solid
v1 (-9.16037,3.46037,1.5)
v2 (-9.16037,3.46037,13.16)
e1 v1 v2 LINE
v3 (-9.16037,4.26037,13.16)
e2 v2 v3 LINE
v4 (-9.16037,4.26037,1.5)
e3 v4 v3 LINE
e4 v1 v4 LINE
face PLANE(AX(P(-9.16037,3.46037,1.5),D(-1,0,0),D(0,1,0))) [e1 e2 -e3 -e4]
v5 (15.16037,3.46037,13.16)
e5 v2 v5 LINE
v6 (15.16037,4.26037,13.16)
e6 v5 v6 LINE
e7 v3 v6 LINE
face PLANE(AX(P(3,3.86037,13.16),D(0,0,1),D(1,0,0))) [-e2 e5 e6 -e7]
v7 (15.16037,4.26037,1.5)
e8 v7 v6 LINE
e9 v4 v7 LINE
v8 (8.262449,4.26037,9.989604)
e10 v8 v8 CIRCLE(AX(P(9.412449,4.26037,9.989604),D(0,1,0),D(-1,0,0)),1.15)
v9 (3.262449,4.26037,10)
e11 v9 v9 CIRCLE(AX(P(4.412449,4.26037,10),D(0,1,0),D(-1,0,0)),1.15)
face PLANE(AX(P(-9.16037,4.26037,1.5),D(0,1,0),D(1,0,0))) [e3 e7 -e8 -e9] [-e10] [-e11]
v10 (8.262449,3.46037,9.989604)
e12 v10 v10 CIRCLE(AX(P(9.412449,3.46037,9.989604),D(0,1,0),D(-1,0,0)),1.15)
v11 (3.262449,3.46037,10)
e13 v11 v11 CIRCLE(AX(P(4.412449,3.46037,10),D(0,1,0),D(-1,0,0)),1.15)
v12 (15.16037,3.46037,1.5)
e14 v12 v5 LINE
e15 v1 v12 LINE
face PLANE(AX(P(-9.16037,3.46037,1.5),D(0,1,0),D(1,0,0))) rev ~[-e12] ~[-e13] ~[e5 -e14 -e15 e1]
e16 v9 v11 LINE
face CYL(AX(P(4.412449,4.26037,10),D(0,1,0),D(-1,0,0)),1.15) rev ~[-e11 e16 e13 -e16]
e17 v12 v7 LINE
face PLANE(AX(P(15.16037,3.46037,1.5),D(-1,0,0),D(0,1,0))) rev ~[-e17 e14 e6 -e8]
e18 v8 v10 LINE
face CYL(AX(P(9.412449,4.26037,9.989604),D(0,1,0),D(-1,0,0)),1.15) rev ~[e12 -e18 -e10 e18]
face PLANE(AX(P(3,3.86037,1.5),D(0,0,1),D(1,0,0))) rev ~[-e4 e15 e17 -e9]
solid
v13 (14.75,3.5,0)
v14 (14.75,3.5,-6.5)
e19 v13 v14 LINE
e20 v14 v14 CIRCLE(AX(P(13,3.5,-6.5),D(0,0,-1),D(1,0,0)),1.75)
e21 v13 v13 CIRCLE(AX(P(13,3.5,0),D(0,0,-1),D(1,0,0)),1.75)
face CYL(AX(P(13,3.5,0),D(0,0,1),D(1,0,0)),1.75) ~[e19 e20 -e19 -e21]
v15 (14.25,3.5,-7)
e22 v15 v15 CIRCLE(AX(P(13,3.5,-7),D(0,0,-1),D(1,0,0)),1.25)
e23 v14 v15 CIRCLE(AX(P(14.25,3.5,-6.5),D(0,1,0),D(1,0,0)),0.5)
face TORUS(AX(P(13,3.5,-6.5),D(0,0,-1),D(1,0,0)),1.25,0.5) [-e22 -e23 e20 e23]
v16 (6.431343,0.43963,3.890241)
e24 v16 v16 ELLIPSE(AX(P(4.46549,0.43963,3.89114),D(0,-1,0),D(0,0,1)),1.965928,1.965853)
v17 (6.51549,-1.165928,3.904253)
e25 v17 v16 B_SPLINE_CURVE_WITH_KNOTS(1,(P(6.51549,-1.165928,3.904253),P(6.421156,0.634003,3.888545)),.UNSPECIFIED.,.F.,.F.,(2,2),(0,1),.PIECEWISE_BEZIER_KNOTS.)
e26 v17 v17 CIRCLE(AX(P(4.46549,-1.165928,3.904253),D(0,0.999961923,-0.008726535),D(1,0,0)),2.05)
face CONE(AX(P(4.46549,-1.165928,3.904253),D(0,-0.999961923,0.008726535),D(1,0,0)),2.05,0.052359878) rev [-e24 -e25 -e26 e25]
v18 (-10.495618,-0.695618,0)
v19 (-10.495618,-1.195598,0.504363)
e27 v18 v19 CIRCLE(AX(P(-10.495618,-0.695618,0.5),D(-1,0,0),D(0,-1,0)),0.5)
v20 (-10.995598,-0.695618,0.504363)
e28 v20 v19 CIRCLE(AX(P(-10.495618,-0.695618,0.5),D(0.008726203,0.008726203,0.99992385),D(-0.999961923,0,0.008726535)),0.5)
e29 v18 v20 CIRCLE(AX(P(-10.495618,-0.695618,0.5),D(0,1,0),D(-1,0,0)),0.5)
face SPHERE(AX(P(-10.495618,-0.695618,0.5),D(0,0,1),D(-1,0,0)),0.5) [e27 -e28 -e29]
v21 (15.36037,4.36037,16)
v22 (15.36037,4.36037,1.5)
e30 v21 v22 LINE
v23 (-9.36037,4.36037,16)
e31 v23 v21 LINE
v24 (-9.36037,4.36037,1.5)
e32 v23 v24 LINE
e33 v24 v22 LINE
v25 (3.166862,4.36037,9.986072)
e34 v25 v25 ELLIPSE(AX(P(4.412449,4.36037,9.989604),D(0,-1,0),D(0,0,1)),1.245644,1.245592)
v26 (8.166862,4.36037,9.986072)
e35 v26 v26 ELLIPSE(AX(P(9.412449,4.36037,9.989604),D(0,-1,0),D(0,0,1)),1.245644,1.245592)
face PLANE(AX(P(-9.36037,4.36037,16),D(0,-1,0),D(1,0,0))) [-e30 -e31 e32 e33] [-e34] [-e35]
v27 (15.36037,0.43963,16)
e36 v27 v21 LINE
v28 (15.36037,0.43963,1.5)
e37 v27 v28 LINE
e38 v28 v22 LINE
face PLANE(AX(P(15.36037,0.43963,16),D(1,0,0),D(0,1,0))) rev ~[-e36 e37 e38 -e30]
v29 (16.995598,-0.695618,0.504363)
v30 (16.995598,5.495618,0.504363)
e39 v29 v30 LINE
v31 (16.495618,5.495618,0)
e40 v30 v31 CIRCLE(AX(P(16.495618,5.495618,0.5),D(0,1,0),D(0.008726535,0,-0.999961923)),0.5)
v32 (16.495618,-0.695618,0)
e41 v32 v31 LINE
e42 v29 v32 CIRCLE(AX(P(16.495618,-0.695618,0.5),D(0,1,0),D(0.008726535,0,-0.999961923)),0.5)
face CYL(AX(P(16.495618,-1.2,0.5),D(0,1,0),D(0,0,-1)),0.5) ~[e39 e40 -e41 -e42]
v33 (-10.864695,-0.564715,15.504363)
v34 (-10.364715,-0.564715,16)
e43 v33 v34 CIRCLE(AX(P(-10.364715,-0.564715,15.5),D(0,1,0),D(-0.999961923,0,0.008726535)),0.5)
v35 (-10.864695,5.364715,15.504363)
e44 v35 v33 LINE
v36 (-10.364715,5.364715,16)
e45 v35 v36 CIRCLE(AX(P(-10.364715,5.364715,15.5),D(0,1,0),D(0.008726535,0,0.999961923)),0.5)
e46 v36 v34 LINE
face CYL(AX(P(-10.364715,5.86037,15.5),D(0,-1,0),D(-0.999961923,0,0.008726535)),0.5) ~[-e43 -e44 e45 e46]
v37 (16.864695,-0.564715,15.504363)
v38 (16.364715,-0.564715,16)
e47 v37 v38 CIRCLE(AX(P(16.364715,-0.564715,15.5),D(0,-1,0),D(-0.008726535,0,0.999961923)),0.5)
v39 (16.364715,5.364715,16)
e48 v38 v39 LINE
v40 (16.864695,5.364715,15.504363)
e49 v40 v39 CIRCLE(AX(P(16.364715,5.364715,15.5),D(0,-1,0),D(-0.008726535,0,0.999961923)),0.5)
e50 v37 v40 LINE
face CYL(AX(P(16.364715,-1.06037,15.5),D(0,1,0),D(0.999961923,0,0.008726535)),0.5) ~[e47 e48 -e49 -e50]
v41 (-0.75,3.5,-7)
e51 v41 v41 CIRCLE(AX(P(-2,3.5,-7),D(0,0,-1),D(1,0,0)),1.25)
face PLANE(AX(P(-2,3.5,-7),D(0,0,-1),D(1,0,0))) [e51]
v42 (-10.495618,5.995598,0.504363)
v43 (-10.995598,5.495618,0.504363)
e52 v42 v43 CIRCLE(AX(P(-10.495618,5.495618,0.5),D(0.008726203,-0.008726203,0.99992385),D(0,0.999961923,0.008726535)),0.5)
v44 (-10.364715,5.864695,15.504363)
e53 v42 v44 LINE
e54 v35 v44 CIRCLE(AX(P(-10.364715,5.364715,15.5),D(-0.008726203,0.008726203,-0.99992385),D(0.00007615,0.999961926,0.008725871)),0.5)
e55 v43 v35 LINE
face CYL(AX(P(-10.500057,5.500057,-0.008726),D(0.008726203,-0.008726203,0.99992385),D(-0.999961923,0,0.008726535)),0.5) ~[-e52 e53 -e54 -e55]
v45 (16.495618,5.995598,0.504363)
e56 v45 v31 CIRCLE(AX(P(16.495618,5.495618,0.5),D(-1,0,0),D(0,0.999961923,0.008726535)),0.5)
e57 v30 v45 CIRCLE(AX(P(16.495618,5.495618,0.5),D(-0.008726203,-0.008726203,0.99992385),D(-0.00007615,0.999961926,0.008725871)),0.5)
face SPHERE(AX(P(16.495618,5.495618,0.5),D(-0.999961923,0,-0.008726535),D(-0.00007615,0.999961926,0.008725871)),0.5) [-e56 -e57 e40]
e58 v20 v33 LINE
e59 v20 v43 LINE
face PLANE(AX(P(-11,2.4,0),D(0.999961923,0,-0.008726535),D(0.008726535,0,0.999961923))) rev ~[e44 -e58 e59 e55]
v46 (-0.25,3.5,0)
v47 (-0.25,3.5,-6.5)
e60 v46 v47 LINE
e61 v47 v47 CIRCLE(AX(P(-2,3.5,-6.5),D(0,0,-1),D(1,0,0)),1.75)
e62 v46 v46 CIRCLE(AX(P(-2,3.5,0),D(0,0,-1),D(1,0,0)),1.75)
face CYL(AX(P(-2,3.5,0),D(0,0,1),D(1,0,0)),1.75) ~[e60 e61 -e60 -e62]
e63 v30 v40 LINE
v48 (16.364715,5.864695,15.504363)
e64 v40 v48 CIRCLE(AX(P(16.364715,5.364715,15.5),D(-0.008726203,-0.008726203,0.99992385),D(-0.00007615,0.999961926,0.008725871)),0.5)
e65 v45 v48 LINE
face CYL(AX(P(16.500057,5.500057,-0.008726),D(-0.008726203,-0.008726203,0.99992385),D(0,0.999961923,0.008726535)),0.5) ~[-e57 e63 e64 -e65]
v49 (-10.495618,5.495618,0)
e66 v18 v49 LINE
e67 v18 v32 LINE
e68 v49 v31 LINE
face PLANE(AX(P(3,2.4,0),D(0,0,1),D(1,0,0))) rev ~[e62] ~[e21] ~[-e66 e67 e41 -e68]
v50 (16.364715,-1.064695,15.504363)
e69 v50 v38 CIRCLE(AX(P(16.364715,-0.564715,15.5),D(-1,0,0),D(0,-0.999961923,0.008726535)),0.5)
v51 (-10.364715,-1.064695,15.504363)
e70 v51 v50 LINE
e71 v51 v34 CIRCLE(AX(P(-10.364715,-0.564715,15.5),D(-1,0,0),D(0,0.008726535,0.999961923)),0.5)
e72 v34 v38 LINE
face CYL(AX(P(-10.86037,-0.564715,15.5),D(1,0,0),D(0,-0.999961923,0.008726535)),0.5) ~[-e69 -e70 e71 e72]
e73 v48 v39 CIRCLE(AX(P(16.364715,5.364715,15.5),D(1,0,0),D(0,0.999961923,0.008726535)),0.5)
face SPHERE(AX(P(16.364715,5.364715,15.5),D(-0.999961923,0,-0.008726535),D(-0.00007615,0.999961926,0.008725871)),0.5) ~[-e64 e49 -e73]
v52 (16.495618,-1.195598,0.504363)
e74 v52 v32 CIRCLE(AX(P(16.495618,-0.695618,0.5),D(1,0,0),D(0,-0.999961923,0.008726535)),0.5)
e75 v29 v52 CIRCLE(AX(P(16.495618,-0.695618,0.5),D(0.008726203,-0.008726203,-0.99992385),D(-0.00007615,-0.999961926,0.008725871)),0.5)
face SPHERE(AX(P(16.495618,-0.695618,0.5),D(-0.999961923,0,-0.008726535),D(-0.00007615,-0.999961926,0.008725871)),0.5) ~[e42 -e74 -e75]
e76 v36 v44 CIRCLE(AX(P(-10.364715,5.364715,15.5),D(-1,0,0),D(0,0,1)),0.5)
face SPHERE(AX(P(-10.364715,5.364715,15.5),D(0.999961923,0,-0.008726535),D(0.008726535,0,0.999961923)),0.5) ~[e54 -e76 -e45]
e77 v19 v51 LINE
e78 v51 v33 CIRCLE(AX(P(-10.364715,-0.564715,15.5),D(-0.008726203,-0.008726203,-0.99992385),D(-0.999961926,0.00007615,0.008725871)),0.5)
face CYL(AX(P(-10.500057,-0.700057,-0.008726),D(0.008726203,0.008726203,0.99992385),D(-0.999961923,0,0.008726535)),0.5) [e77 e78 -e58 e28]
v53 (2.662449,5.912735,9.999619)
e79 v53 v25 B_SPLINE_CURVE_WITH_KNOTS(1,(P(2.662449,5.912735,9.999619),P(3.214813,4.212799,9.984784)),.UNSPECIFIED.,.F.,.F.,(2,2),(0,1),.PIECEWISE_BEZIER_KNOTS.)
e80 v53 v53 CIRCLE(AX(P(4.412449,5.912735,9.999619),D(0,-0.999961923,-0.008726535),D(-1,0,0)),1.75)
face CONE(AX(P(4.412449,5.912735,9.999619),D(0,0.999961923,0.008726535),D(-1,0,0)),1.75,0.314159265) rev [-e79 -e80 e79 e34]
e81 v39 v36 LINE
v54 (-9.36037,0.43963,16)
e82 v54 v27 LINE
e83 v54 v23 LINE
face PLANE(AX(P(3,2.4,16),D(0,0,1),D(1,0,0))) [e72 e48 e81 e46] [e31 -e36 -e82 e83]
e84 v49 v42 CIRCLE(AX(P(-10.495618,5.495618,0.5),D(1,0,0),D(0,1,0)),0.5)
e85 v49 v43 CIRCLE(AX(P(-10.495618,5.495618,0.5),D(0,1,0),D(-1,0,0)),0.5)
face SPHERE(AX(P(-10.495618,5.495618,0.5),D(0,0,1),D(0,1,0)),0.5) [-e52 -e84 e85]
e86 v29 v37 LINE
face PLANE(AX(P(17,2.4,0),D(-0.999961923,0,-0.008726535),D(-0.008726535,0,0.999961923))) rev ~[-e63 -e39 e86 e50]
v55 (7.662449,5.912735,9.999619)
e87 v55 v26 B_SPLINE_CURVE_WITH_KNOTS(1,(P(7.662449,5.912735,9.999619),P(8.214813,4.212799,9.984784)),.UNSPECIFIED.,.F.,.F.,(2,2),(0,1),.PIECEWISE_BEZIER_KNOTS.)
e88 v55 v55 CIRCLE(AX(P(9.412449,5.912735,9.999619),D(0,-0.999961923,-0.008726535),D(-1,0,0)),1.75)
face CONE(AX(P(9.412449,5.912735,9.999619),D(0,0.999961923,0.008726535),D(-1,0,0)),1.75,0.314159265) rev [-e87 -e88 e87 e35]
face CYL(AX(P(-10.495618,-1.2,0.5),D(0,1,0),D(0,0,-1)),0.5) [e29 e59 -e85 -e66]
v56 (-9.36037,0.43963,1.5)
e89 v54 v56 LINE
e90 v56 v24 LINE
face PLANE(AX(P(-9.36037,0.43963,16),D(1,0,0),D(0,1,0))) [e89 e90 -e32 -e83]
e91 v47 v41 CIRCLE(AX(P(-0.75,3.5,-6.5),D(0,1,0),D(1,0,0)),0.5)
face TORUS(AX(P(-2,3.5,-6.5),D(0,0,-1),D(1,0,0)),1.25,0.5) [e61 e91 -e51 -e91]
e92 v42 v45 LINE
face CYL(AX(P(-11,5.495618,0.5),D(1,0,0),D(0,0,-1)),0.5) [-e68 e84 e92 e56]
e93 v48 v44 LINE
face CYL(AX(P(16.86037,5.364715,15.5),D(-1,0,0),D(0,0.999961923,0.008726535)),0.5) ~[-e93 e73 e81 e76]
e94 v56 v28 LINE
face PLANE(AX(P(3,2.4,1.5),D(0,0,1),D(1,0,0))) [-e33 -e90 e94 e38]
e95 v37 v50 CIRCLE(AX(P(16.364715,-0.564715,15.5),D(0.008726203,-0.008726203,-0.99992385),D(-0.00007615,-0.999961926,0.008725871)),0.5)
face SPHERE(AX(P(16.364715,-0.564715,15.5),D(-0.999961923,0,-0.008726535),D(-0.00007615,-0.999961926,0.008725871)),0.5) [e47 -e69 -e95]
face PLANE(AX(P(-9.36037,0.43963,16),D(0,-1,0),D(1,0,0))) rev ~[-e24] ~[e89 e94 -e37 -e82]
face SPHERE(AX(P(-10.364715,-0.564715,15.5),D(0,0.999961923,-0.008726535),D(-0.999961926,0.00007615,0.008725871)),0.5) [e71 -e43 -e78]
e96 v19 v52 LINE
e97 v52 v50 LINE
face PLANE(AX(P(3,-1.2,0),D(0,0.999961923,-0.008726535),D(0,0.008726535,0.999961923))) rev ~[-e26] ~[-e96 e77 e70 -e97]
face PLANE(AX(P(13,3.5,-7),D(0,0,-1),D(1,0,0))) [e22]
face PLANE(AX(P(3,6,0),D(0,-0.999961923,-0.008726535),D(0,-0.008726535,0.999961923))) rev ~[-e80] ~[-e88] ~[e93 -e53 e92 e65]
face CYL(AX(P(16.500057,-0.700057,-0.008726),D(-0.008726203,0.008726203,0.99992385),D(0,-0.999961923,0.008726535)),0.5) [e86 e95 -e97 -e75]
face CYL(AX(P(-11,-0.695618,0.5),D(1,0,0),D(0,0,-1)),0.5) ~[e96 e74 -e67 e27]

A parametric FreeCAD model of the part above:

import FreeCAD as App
import Part
import Sketcher
Q = App.Units.Quantity


def edges_at(feature, points):
    """Names of the edges that pass closest to the given points."""
    edges = feature.Shape.Edges
    near = lambda p: min(range(len(edges)), key=lambda i: edges[i].distToShape(Part.Vertex(*p))[0])
    return sorted({f"Edge{near(p) + 1}" for p in points})

doc = App.newDocument("Part")
body = doc.addObject("PartDesign::Body", "Body")

# Sketch on XY plane
sketch1 = body.newObject("Sketcher::SketchObject", "Sketch")
sketch1.AttachmentSupport = (doc.getObject("XY_Plane"), [""])
sketch1.MapMode = "FlatFace"
sketch1.addGeometry(Part.LineSegment(App.Vector(-11, 6, 0), App.Vector(-11, -1.2, 0)), False)
sketch1.addGeometry(Part.LineSegment(App.Vector(-11, -1.2, 0), App.Vector(17, -1.2, 0)), False)
sketch1.addGeometry(Part.LineSegment(App.Vector(17, -1.2, 0), App.Vector(17, 6, 0)), False)
sketch1.addGeometry(Part.LineSegment(App.Vector(17, 6, 0), App.Vector(-11, 6, 0)), False)
sketch1.addConstraint(Sketcher.Constraint("Coincident", 0, 2, 1, 1))
sketch1.addConstraint(Sketcher.Constraint("Coincident", 1, 2, 2, 1))
sketch1.addConstraint(Sketcher.Constraint("Coincident", 2, 2, 3, 1))
sketch1.addConstraint(Sketcher.Constraint("Coincident", 3, 2, 0, 1))
sketch1.addConstraint(Sketcher.Constraint("Vertical", 0))
sketch1.addConstraint(Sketcher.Constraint("Horizontal", 1))
sketch1.addConstraint(Sketcher.Constraint("Vertical", 2))
sketch1.addConstraint(Sketcher.Constraint("Horizontal", 3))
sketch1.addConstraint(Sketcher.Constraint("DistanceX", 1, 1, 1, 2, Q("28 mm")))
sketch1.addConstraint(Sketcher.Constraint("DistanceY", 0, 2, 0, 1, Q("7.2 mm")))
sketch1.addConstraint(Sketcher.Constraint("DistanceX", 0, 2, -1, 1, Q("11 mm")))
sketch1.addConstraint(Sketcher.Constraint("DistanceY", -1, 1, 2, 2, Q("6 mm")))
pad1 = body.newObject("PartDesign::Pad", "Pad")
pad1.Profile = sketch1
pad1.Length = 16
pad1.TaperAngle = -0.5

# Sketch on XY plane
sketch2 = body.newObject("Sketcher::SketchObject", "Sketch001")
sketch2.AttachmentSupport = (doc.getObject("XY_Plane"), [""])
sketch2.MapMode = "FlatFace"
sketch2.addGeometry(Part.Circle(App.Vector(13, 3.5, 0), App.Vector(0, 0, 1), 1.75), False)
sketch2.addGeometry(Part.Circle(App.Vector(-2, 3.5, 0), App.Vector(0, 0, 1), 1.75), False)
sketch2.addConstraint(Sketcher.Constraint("Equal", 0, 1))
sketch2.addConstraint(Sketcher.Constraint("Horizontal", 0, 3, 1, 3))
sketch2.addConstraint(Sketcher.Constraint("Diameter", 0, Q("3.5 mm")))
sketch2.addConstraint(Sketcher.Constraint("DistanceX", -1, 1, 0, 3, Q("13 mm")))
sketch2.addConstraint(Sketcher.Constraint("DistanceX", 1, 3, -1, 1, Q("2 mm")))
sketch2.addConstraint(Sketcher.Constraint("DistanceY", -1, 1, 0, 3, Q("3.5 mm")))
pad2 = body.newObject("PartDesign::Pad", "Pad001")
pad2.Profile = sketch2
pad2.Length = 7
pad2.Reversed = True

# Sketch on an angled plane
sketch3 = body.newObject("Sketcher::SketchObject", "Sketch002")
sketch3.Placement = App.Placement(App.Vector(0, 5.999543, 0.052357), App.Rotation(App.Vector(-1, 0, 0), App.Vector(0, -0.008726535, 0.999961923), App.Vector(0, 0.999961923, 0.008726535), "ZXY"))
sketch3.addGeometry(Part.Circle(App.Vector(-6.726412, 22.881377, 0), App.Vector(0, 0, 1), 1.75), False)
sketch3.addConstraint(Sketcher.Constraint("Diameter", 0, Q("3.5 mm")))
sketch3.addConstraint(Sketcher.Constraint("DistanceX", 0, 3, -1, 1, Q("6.726412 mm")))
sketch3.addConstraint(Sketcher.Constraint("DistanceY", -1, 1, 0, 3, Q("22.881377 mm")))
pocket1 = body.newObject("PartDesign::Pocket", "Pocket")
pocket1.Profile = sketch3
pocket1.Length = 1.6
pocket1.TaperAngle = -18

# Sketch on an angled plane
sketch4 = body.newObject("Sketcher::SketchObject", "Sketch003")
sketch4.Placement = App.Placement(App.Vector(0, 5.999543, 0.052357), App.Rotation(App.Vector(-1, 0, 0), App.Vector(0, -0.008726535, 0.999961923), App.Vector(0, 0.999961923, 0.008726535), "ZXY"))
sketch4.addGeometry(Part.Circle(App.Vector(-9.412449, 9.947641, 0), App.Vector(0, 0, 1), 1.75), False)
sketch4.addGeometry(Part.Circle(App.Vector(-4.412449, 9.947641, 0), App.Vector(0, 0, 1), 1.75), False)
sketch4.addConstraint(Sketcher.Constraint("Equal", 0, 1))
sketch4.addConstraint(Sketcher.Constraint("Horizontal", 0, 3, 1, 3))
sketch4.addConstraint(Sketcher.Constraint("Diameter", 0, Q("3.5 mm")))
sketch4.addConstraint(Sketcher.Constraint("DistanceX", 0, 3, 1, 3, Q("5 mm")))
sketch4.addConstraint(Sketcher.Constraint("DistanceX", 0, 3, -1, 1, Q("9.412449 mm")))
sketch4.addConstraint(Sketcher.Constraint("DistanceY", -1, 1, 0, 3, Q("9.947641 mm")))
pocket2 = body.newObject("PartDesign::Pocket", "Pocket001")
pocket2.Profile = sketch4
pocket2.Length = 1.7
pocket2.TaperAngle = -18

# Sketch on XY plane
sketch5 = body.newObject("Sketcher::SketchObject", "Sketch004")
sketch5.AttachmentSupport = (doc.getObject("XY_Plane"), [""])
sketch5.MapMode = "FlatFace"
sketch5.AttachmentOffset = App.Placement(App.Vector(0, 0, 16), App.Rotation())
sketch5.addGeometry(Part.LineSegment(App.Vector(-9.36037, 4.36037, 0), App.Vector(-9.36037, 0.43963, 0)), False)
sketch5.addGeometry(Part.LineSegment(App.Vector(-9.36037, 0.43963, 0), App.Vector(15.36037, 0.43963, 0)), False)
sketch5.addGeometry(Part.LineSegment(App.Vector(15.36037, 0.43963, 0), App.Vector(15.36037, 4.36037, 0)), False)
sketch5.addGeometry(Part.LineSegment(App.Vector(15.36037, 4.36037, 0), App.Vector(-9.36037, 4.36037, 0)), False)
sketch5.addConstraint(Sketcher.Constraint("Coincident", 0, 2, 1, 1))
sketch5.addConstraint(Sketcher.Constraint("Coincident", 1, 2, 2, 1))
sketch5.addConstraint(Sketcher.Constraint("Coincident", 2, 2, 3, 1))
sketch5.addConstraint(Sketcher.Constraint("Coincident", 3, 2, 0, 1))
sketch5.addConstraint(Sketcher.Constraint("Vertical", 0))
sketch5.addConstraint(Sketcher.Constraint("Horizontal", 1))
sketch5.addConstraint(Sketcher.Constraint("Vertical", 2))
sketch5.addConstraint(Sketcher.Constraint("Horizontal", 3))
sketch5.addConstraint(Sketcher.Constraint("DistanceX", 1, 1, 1, 2, Q("24.72074 mm")))
sketch5.addConstraint(Sketcher.Constraint("DistanceY", 0, 2, 0, 1, Q("3.92074 mm")))
sketch5.addConstraint(Sketcher.Constraint("DistanceX", 0, 2, -1, 1, Q("9.36037 mm")))
sketch5.addConstraint(Sketcher.Constraint("DistanceY", -1, 1, 0, 2, Q("0.43963 mm")))
pocket3 = body.newObject("PartDesign::Pocket", "Pocket002")
pocket3.Profile = sketch5
pocket3.Length = 14.5
doc.recompute()

fillet = body.newObject("PartDesign::Fillet", "Fillet")
fillet.Base = (pocket3, edges_at(pocket3, [
    (3, 5.86, 16),
    (-10.86, 2.4, 16),
    (-10.93, 5.93, 8),
    (3, 6, 0),
    (16.93, 5.93, 8),
    (-10.93, -1.13, 8),
    (-11, 2.4, 0),
    (3, -1.2, 0),
    (3, -1.06, 16),
    (16.93, -1.13, 8),
    (16.86, 2.4, 16),
    (17, 2.4, 0),
    (-3.75, 3.5, -7),
    (11.25, 3.5, -7),
]))
fillet.Radius = 0.5

# Sketch on an angled plane
sketch6 = body.newObject("Sketcher::SketchObject", "Sketch005")
sketch6.Placement = App.Placement(App.Vector(0, -1.199909, 0.010471), App.Rotation(App.Vector(1, 0, 0), App.Vector(0, 0.008726535, 0.999961923), App.Vector(0, -0.999961923, 0.008726535), "ZXY"))
sketch6.addGeometry(Part.Circle(App.Vector(4.46549, 3.89393, 0), App.Vector(0, 0, 1), 2.05), False)
sketch6.addConstraint(Sketcher.Constraint("Diameter", 0, Q("4.1 mm")))
sketch6.addConstraint(Sketcher.Constraint("DistanceX", -1, 1, 0, 3, Q("4.46549 mm")))
sketch6.addConstraint(Sketcher.Constraint("DistanceY", -1, 1, 0, 3, Q("3.89393 mm")))
pocket4 = body.newObject("PartDesign::Pocket", "Pocket003")
pocket4.Profile = sketch6
pocket4.Length = 1.8
pocket4.TaperAngle = -3
body2 = doc.addObject("PartDesign::Body", "Body001")

# Sketch on XY plane
sketch7 = body2.newObject("Sketcher::SketchObject", "Sketch006")
sketch7.AttachmentSupport = (doc.getObject("XY_Plane001"), [""])
sketch7.MapMode = "FlatFace"
sketch7.AttachmentOffset = App.Placement(App.Vector(0, 0, 1.5), App.Rotation())
sketch7.addGeometry(Part.LineSegment(App.Vector(-9.16037, 4.26037, 0), App.Vector(-9.16037, 3.46037, 0)), False)
sketch7.addGeometry(Part.LineSegment(App.Vector(-9.16037, 3.46037, 0), App.Vector(15.16037, 3.46037, 0)), False)
sketch7.addGeometry(Part.LineSegment(App.Vector(15.16037, 3.46037, 0), App.Vector(15.16037, 4.26037, 0)), False)
sketch7.addGeometry(Part.LineSegment(App.Vector(15.16037, 4.26037, 0), App.Vector(-9.16037, 4.26037, 0)), False)
sketch7.addConstraint(Sketcher.Constraint("Coincident", 0, 2, 1, 1))
sketch7.addConstraint(Sketcher.Constraint("Coincident", 1, 2, 2, 1))
sketch7.addConstraint(Sketcher.Constraint("Coincident", 2, 2, 3, 1))
sketch7.addConstraint(Sketcher.Constraint("Coincident", 3, 2, 0, 1))
sketch7.addConstraint(Sketcher.Constraint("Vertical", 0))
sketch7.addConstraint(Sketcher.Constraint("Horizontal", 1))
sketch7.addConstraint(Sketcher.Constraint("Vertical", 2))
sketch7.addConstraint(Sketcher.Constraint("Horizontal", 3))
sketch7.addConstraint(Sketcher.Constraint("DistanceY", 0, 2, 0, 1, Q("0.8 mm")))
sketch7.addConstraint(Sketcher.Constraint("DistanceX", 1, 1, 1, 2, Q("24.32074 mm")))
sketch7.addConstraint(Sketcher.Constraint("DistanceX", 0, 2, -1, 1, Q("9.16037 mm")))
sketch7.addConstraint(Sketcher.Constraint("DistanceY", -1, 1, 0, 2, Q("3.46037 mm")))
pad3 = body2.newObject("PartDesign::Pad", "Pad002")
pad3.Profile = sketch7
pad3.Length = 11.66

# Sketch on XZ plane
sketch8 = body2.newObject("Sketcher::SketchObject", "Sketch007")
sketch8.AttachmentSupport = (doc.getObject("XZ_Plane001"), [""])
sketch8.MapMode = "FlatFace"
sketch8.AttachmentOffset = App.Placement(App.Vector(0, 0, -4.26037), App.Rotation())
sketch8.addGeometry(Part.Circle(App.Vector(9.412449, 9.989604, 0), App.Vector(0, 0, 1), 1.15), False)
sketch8.addGeometry(Part.Circle(App.Vector(4.412449, 10, 0), App.Vector(0, 0, 1), 1.15), False)
sketch8.addConstraint(Sketcher.Constraint("Equal", 0, 1))
sketch8.addConstraint(Sketcher.Constraint("Diameter", 0, Q("2.3 mm")))
sketch8.addConstraint(Sketcher.Constraint("DistanceY", -1, 1, 1, 3, Q("10 mm")))
sketch8.addConstraint(Sketcher.Constraint("DistanceX", 1, 3, 0, 3, Q("5 mm")))
sketch8.addConstraint(Sketcher.Constraint("DistanceX", -1, 1, 0, 3, Q("9.412449 mm")))
sketch8.addConstraint(Sketcher.Constraint("DistanceY", -1, 1, 0, 3, Q("9.989604 mm")))
pocket5 = body2.newObject("PartDesign::Pocket", "Pocket004")
pocket5.Profile = sketch8
pocket5.Length = 1
pocket5.Reversed = True

doc.recompute()
